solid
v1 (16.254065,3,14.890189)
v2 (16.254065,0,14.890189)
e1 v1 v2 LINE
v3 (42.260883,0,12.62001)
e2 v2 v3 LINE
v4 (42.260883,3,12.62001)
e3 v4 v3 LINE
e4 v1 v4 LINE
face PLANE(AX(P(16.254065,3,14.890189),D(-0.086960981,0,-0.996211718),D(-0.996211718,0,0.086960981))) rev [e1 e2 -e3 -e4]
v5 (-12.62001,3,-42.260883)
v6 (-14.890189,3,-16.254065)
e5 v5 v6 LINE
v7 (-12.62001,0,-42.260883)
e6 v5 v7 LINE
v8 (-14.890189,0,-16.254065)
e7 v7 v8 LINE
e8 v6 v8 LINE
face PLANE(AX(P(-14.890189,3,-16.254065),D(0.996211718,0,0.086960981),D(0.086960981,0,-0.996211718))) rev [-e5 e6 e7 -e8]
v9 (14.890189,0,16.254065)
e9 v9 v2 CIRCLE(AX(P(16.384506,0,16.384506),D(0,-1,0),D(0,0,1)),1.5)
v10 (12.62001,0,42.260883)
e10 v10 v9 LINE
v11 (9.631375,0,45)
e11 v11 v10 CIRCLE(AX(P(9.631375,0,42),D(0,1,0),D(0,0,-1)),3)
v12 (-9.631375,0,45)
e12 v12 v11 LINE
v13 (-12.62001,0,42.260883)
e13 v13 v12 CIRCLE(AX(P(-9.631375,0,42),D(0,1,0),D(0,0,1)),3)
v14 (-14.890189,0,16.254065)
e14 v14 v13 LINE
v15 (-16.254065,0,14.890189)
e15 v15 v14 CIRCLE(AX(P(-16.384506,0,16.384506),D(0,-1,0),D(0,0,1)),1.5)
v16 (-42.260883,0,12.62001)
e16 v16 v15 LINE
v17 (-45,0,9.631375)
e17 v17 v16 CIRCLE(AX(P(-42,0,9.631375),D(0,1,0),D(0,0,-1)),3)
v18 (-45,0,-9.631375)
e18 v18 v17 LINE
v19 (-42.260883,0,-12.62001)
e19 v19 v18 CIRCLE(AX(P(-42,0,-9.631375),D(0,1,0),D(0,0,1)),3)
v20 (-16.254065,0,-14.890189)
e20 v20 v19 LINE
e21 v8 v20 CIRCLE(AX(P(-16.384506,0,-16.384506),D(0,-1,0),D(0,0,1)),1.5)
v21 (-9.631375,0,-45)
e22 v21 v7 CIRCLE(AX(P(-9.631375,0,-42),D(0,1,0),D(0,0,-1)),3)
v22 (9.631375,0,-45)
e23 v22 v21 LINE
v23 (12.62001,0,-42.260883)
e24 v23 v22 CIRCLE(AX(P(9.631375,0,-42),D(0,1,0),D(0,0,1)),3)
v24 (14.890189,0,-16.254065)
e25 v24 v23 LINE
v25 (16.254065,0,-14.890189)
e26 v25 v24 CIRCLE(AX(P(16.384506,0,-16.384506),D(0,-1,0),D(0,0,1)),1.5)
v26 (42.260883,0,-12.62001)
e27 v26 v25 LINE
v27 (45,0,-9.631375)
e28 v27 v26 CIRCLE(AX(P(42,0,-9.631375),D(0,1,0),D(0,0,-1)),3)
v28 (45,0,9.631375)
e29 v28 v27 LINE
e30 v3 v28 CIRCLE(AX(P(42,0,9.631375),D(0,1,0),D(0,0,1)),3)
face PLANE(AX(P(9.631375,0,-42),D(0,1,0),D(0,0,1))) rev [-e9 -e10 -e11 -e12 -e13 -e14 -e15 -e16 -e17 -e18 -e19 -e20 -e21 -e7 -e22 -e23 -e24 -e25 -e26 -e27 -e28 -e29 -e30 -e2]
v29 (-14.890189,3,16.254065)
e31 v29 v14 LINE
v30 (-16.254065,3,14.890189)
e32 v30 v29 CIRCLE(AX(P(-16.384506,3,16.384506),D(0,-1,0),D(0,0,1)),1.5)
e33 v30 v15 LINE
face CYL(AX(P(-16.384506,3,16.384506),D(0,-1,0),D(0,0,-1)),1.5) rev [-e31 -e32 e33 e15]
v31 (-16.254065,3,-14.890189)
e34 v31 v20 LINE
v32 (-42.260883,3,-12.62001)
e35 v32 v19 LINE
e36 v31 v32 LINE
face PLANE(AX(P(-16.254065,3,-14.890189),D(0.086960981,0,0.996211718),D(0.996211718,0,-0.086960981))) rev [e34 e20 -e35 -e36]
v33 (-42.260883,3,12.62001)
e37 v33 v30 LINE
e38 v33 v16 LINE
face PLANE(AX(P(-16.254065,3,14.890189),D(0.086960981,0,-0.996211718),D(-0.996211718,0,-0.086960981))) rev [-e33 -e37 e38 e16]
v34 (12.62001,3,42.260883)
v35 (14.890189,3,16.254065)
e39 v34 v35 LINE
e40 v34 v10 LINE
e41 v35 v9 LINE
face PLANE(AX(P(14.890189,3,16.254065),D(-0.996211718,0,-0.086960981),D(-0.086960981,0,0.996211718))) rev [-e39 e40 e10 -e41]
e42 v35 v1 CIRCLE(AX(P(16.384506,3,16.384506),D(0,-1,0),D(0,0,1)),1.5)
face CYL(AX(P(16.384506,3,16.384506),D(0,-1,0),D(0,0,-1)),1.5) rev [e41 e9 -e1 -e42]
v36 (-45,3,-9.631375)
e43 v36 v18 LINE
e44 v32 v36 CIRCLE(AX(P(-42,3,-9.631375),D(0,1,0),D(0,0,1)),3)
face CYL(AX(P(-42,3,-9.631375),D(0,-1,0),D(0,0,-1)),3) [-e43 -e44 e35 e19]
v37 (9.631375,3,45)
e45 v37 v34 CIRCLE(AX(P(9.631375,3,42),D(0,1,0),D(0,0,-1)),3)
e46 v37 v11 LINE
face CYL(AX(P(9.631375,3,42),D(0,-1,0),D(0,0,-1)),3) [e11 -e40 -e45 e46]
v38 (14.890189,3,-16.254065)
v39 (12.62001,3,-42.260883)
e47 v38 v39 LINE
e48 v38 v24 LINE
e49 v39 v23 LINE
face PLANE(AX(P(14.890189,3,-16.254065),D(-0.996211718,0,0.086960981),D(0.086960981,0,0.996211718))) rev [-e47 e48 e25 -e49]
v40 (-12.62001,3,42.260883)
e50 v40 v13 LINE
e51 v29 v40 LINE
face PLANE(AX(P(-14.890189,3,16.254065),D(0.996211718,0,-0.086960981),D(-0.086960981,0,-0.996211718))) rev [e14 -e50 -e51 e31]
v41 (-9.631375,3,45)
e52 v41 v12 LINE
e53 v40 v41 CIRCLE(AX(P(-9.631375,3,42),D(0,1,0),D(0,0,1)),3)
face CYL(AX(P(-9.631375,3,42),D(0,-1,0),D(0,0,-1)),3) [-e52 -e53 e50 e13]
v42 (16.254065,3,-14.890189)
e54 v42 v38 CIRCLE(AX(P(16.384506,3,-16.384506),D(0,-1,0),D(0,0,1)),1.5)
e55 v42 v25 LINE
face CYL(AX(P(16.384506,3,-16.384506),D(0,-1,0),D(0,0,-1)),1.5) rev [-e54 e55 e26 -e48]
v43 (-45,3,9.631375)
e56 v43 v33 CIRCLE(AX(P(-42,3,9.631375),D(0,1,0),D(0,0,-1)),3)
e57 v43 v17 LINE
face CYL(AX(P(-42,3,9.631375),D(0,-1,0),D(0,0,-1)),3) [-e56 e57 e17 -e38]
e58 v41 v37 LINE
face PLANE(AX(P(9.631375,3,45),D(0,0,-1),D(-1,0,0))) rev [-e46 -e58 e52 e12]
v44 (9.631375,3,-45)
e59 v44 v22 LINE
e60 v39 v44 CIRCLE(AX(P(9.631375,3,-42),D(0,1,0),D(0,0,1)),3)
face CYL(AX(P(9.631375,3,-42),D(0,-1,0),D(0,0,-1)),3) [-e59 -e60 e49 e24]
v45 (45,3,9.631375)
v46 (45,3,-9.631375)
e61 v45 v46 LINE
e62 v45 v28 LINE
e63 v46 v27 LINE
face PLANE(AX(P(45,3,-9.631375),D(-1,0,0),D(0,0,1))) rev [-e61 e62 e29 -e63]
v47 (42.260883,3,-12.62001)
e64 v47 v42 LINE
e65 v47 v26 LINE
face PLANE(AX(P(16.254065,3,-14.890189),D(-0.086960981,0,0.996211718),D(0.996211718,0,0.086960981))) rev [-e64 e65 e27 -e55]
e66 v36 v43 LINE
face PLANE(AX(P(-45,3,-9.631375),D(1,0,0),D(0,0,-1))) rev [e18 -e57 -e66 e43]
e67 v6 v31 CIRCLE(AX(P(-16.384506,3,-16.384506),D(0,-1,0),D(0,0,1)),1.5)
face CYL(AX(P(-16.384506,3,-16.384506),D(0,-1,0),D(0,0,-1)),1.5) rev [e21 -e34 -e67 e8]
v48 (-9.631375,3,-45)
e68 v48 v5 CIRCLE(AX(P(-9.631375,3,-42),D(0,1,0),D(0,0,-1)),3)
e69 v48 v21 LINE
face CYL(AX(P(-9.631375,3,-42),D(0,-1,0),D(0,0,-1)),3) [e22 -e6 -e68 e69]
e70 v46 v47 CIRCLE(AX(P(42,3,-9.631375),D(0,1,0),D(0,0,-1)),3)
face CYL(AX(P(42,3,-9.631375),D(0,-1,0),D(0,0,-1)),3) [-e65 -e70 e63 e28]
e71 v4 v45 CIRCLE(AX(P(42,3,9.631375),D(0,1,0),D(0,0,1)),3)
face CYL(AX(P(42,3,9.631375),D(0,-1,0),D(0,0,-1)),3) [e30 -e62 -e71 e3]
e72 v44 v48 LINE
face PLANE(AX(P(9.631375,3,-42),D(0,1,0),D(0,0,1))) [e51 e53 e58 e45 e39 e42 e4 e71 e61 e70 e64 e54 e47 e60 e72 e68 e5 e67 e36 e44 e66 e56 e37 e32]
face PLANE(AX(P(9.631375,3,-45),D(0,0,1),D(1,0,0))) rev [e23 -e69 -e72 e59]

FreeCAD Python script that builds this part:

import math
import FreeCAD as App
import Part
import Sketcher
from FreeCAD import Vector
Q = App.Units.Quantity

doc = App.newDocument("Part")
body = doc.addObject("PartDesign::Body", "Body")

# Sketch on XZ plane
sketch1 = body.newObject("Sketcher::SketchObject", "Sketch")
sketch1.AttachmentSupport = (doc.getObject("XZ_Plane"), [""])
sketch1.MapMode = "FlatFace"
sketch1.addGeometry(Part.LineSegment(Vector(-12.6, -42.3, 0), Vector(-14.9, -16.3, 0)), False)
sketch1.addGeometry(Part.ArcOfCircle(Part.Circle(Vector(-16.4, -16.4, 0), Vector(0, 0, 1), 1.5), math.radians(5), math.radians(85)), False)
sketch1.addGeometry(Part.LineSegment(Vector(-16.3, -14.9, 0), Vector(-42.3, -12.6, 0)), False)
sketch1.addGeometry(Part.ArcOfCircle(Part.Circle(Vector(-42, -9.6, 0), Vector(0, 0, 1), 3), math.radians(180), math.radians(265)), False)
sketch1.addGeometry(Part.LineSegment(Vector(-45, -9.6, 0), Vector(-45, 9.6, 0)), False)
sketch1.addGeometry(Part.ArcOfCircle(Part.Circle(Vector(-42, 9.6, 0), Vector(0, 0, 1), 3), math.radians(95), math.radians(180)), False)
sketch1.addGeometry(Part.LineSegment(Vector(-42.3, 12.6, 0), Vector(-16.3, 14.9, 0)), False)
sketch1.addGeometry(Part.ArcOfCircle(Part.Circle(Vector(-16.4, 16.4, 0), Vector(0, 0, 1), 1.5), math.radians(-85), math.radians(-5)), False)
sketch1.addGeometry(Part.LineSegment(Vector(-14.9, 16.3, 0), Vector(-12.6, 42.3, 0)), False)
sketch1.addGeometry(Part.ArcOfCircle(Part.Circle(Vector(-9.6, 42, 0), Vector(0, 0, 1), 3), math.radians(90), math.radians(175)), False)
sketch1.addGeometry(Part.LineSegment(Vector(-9.6, 45, 0), Vector(9.6, 45, 0)), False)
sketch1.addGeometry(Part.ArcOfCircle(Part.Circle(Vector(9.6, 42, 0), Vector(0, 0, 1), 3), math.radians(5), math.radians(90)), False)
sketch1.addGeometry(Part.LineSegment(Vector(12.6, 42.3, 0), Vector(14.9, 16.3, 0)), False)
sketch1.addGeometry(Part.ArcOfCircle(Part.Circle(Vector(16.4, 16.4, 0), Vector(0, 0, 1), 1.5), math.radians(-175), math.radians(-95)), False)
sketch1.addGeometry(Part.LineSegment(Vector(16.3, 14.9, 0), Vector(42.3, 12.6, 0)), False)
sketch1.addGeometry(Part.ArcOfCircle(Part.Circle(Vector(42, 9.6, 0), Vector(0, 0, 1), 3), math.radians(0), math.radians(85)), False)
sketch1.addGeometry(Part.LineSegment(Vector(45, 9.6, 0), Vector(45, -9.6, 0)), False)
sketch1.addGeometry(Part.ArcOfCircle(Part.Circle(Vector(42, -9.6, 0), Vector(0, 0, 1), 3), math.radians(-85), math.radians(0)), False)
sketch1.addGeometry(Part.LineSegment(Vector(42.3, -12.6, 0), Vector(16.3, -14.9, 0)), False)
sketch1.addGeometry(Part.ArcOfCircle(Part.Circle(Vector(16.4, -16.4, 0), Vector(0, 0, 1), 1.5), math.radians(95), math.radians(175)), False)
sketch1.addGeometry(Part.LineSegment(Vector(14.9, -16.3, 0), Vector(12.6, -42.3, 0)), False)
sketch1.addGeometry(Part.ArcOfCircle(Part.Circle(Vector(9.6, -42, 0), Vector(0, 0, 1), 3), math.radians(-90), math.radians(-5)), False)
sketch1.addGeometry(Part.LineSegment(Vector(9.6, -45, 0), Vector(-9.6, -45, 0)), False)
sketch1.addGeometry(Part.ArcOfCircle(Part.Circle(Vector(-9.6, -42, 0), Vector(0, 0, 1), 3), math.radians(-175), math.radians(-90)), False)
sketch1.addConstraint(Sketcher.Constraint("Tangent", 0, 2, 1, 1))
sketch1.addConstraint(Sketcher.Constraint("Tangent", 1, 2, 2, 1))
sketch1.addConstraint(Sketcher.Constraint("Tangent", 2, 2, 3, 2))
sketch1.addConstraint(Sketcher.Constraint("Tangent", 3, 1, 4, 1))
sketch1.addConstraint(Sketcher.Constraint("Tangent", 4, 2, 5, 2))
sketch1.addConstraint(Sketcher.Constraint("Tangent", 5, 1, 6, 1))
sketch1.addConstraint(Sketcher.Constraint("Tangent", 6, 2, 7, 1))
sketch1.addConstraint(Sketcher.Constraint("Tangent", 7, 2, 8, 1))
sketch1.addConstraint(Sketcher.Constraint("Tangent", 8, 2, 9, 2))
sketch1.addConstraint(Sketcher.Constraint("Tangent", 9, 1, 10, 1))
sketch1.addConstraint(Sketcher.Constraint("Tangent", 10, 2, 11, 2))
sketch1.addConstraint(Sketcher.Constraint("Tangent", 11, 1, 12, 1))
sketch1.addConstraint(Sketcher.Constraint("Tangent", 12, 2, 13, 1))
sketch1.addConstraint(Sketcher.Constraint("Tangent", 13, 2, 14, 1))
sketch1.addConstraint(Sketcher.Constraint("Tangent", 14, 2, 15, 2))
sketch1.addConstraint(Sketcher.Constraint("Tangent", 15, 1, 16, 1))
sketch1.addConstraint(Sketcher.Constraint("Tangent", 16, 2, 17, 2))
sketch1.addConstraint(Sketcher.Constraint("Tangent", 17, 1, 18, 1))
sketch1.addConstraint(Sketcher.Constraint("Tangent", 18, 2, 19, 1))
sketch1.addConstraint(Sketcher.Constraint("Tangent", 19, 2, 20, 1))
sketch1.addConstraint(Sketcher.Constraint("Tangent", 20, 2, 21, 2))
sketch1.addConstraint(Sketcher.Constraint("Tangent", 21, 1, 22, 1))
sketch1.addConstraint(Sketcher.Constraint("Tangent", 22, 2, 23, 2))
sketch1.addConstraint(Sketcher.Constraint("Tangent", 23, 1, 0, 1))
sketch1.addConstraint(Sketcher.Constraint("Vertical", 4))
sketch1.addConstraint(Sketcher.Constraint("Horizontal", 10))
sketch1.addConstraint(Sketcher.Constraint("Vertical", 16))
sketch1.addConstraint(Sketcher.Constraint("Horizontal", 22))
sketch1.addConstraint(Sketcher.Constraint("Equal", 3, 5))
sketch1.addConstraint(Sketcher.Constraint("Equal", 1, 7))
sketch1.addConstraint(Sketcher.Constraint("Equal", 5, 9))
sketch1.addConstraint(Sketcher.Constraint("Equal", 9, 11))
sketch1.addConstraint(Sketcher.Constraint("Equal", 7, 13))
sketch1.addConstraint(Sketcher.Constraint("Equal", 11, 15))
sketch1.addConstraint(Sketcher.Constraint("Equal", 15, 17))
sketch1.addConstraint(Sketcher.Constraint("Equal", 13, 19))
sketch1.addConstraint(Sketcher.Constraint("Equal", 17, 21))
sketch1.addConstraint(Sketcher.Constraint("Equal", 21, 23))
sketch1.addConstraint(Sketcher.Constraint("Symmetric", 1, 3, 13, 3, -1, 1))
sketch1.addConstraint(Sketcher.Constraint("Symmetric", 3, 3, 15, 3, -1, 1))
sketch1.addConstraint(Sketcher.Constraint("Symmetric", 7, 3, 19, 3, -1, 1))
sketch1.addConstraint(Sketcher.Constraint("Symmetric", 9, 3, 21, 3, -1, 1))
sketch1.addConstraint(Sketcher.Constraint("Symmetric", 7, 3, 13, 3, -2))
sketch1.addConstraint(Sketcher.Constraint("Perpendicular", 0, 6))
sketch1.addConstraint(Sketcher.Constraint("Perpendicular", 2, 8))
sketch1.addConstraint(Sketcher.Constraint("Perpendicular", 6, 12))
sketch1.addConstraint(Sketcher.Constraint("Perpendicular", 12, 18))
sketch1.addConstraint(Sketcher.Constraint("Horizontal", 5, 3, 15, 3))
sketch1.addConstraint(Sketcher.Constraint("Equal", 22, 4))
sketch1.addConstraint(Sketcher.Constraint("Equal", 0, 2))
sketch1.addConstraint(Sketcher.Constraint("Radius", 3, Q("3 mm")))
sketch1.addConstraint(Sketcher.Constraint("Radius", 1, Q("1.5 mm")))
sketch1.addConstraint(Sketcher.Constraint("DistanceX", 3, 3, -1, 1, Q("42 mm")))
sketch1.addConstraint(Sketcher.Constraint("DistanceX", 10, 1, 10, 2, Q("19.26275 mm")))
sketch1.addConstraint(Sketcher.Constraint("DistanceX", 0, 2, -1, 1, Q("14.890189 mm")))
pad1 = body.newObject("PartDesign::Pad", "Pad")
pad1.Profile = sketch1
pad1.Length = 3
pad1.Reversed = True

doc.recompute()
